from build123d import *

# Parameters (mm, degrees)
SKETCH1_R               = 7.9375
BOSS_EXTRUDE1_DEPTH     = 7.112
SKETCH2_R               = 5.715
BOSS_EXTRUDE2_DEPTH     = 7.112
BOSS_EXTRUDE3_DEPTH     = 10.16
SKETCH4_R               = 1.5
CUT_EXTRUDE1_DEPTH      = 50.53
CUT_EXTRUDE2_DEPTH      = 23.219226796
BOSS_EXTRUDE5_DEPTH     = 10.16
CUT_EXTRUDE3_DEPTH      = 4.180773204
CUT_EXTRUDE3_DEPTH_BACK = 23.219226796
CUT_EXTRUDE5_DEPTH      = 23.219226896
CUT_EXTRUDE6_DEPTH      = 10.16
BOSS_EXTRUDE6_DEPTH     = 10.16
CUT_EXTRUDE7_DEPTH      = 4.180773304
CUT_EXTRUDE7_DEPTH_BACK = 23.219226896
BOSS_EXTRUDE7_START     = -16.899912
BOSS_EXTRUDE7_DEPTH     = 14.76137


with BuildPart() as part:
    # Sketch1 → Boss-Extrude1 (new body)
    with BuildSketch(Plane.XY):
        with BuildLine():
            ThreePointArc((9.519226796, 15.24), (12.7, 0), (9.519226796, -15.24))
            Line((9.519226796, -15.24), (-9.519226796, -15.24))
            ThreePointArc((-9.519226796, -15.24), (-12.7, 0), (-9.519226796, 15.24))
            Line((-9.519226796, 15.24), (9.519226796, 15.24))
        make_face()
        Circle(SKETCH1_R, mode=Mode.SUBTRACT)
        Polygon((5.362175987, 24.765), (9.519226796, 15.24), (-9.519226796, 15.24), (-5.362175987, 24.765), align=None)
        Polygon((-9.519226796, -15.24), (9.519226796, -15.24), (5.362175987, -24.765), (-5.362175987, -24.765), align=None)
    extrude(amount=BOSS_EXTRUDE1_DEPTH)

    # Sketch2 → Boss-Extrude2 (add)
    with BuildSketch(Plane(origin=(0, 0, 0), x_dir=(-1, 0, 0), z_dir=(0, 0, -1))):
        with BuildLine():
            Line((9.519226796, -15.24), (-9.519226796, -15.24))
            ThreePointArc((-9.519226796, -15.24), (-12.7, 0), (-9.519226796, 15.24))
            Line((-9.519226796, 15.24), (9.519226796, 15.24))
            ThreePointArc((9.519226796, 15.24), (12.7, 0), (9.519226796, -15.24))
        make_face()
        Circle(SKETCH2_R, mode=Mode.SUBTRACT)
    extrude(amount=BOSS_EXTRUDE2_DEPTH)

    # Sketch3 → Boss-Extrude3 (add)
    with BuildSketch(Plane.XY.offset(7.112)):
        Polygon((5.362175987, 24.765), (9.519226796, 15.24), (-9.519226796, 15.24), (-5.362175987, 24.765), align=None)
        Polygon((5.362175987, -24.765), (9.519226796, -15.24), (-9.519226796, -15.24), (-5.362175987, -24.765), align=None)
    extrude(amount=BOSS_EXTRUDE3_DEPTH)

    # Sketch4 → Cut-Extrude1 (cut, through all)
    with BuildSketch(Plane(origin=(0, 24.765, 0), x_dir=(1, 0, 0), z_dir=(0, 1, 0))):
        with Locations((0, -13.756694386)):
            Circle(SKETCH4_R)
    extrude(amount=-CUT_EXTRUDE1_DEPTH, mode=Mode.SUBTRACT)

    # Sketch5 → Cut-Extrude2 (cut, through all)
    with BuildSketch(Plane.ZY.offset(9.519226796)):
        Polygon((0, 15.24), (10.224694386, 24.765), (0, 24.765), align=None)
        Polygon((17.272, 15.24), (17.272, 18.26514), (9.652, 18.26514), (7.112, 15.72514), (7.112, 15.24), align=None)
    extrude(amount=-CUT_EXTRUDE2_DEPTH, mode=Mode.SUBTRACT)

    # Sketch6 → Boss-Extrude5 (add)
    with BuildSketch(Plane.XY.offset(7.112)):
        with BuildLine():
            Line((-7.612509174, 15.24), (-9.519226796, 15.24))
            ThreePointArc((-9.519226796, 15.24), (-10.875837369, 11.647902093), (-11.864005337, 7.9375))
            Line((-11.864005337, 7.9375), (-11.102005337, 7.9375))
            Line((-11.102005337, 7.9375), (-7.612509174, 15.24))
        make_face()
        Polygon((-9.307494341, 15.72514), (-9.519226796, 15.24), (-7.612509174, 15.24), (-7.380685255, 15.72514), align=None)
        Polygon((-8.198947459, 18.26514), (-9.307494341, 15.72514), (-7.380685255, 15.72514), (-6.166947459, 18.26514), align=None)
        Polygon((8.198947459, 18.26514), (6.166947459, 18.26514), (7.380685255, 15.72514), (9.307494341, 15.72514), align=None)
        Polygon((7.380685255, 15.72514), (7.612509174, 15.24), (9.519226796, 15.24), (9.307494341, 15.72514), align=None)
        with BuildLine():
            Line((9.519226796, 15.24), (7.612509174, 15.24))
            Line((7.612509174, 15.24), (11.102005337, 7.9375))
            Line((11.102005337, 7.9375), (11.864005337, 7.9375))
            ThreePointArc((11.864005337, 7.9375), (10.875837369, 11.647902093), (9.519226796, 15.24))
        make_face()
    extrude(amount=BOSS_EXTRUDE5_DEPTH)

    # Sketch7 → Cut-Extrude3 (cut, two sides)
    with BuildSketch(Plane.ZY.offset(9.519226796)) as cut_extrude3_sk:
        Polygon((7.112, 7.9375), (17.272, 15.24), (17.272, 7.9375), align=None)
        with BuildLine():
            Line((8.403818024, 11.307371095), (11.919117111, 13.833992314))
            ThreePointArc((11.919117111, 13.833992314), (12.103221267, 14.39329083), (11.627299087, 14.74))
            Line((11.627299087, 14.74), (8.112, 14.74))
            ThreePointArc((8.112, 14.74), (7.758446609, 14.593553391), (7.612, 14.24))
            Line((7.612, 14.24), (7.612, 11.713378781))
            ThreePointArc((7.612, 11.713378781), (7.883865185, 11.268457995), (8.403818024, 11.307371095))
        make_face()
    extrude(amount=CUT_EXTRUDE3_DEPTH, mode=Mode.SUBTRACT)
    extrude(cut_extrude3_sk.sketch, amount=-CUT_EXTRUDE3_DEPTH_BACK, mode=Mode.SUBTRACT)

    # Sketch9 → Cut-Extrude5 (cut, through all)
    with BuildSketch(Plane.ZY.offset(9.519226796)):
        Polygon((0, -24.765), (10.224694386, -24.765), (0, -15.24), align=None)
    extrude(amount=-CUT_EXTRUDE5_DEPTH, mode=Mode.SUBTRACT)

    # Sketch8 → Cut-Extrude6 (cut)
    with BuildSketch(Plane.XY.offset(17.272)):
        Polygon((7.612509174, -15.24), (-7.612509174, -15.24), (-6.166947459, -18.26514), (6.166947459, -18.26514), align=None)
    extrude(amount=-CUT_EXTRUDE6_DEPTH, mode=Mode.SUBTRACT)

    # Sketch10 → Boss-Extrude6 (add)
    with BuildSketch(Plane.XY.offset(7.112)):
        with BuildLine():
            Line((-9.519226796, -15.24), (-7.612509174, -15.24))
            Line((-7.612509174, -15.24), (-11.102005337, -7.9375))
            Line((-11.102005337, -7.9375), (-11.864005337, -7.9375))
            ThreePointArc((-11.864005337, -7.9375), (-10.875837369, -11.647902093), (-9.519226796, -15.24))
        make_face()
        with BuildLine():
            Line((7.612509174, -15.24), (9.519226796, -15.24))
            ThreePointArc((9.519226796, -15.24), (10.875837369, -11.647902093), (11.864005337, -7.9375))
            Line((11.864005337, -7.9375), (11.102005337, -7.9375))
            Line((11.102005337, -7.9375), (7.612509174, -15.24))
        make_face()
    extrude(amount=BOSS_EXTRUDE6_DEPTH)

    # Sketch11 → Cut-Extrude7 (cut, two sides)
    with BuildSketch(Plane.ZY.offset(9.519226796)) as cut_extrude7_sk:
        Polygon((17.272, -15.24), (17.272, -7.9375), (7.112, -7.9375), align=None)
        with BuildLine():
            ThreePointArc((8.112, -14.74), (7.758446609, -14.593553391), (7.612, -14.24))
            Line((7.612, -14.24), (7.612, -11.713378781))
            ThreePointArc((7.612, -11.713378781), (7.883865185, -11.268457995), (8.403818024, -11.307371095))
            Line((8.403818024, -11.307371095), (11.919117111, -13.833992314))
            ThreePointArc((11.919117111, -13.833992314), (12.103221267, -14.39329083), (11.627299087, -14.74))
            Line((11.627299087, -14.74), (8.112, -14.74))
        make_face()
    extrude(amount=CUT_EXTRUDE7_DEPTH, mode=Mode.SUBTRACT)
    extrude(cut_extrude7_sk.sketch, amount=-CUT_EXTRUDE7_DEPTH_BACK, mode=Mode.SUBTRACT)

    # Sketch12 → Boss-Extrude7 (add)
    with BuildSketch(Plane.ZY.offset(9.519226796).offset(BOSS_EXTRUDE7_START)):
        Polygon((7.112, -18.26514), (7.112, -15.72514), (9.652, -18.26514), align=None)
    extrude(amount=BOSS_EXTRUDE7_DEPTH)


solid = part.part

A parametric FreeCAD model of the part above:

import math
import FreeCAD as App
import Part
import Sketcher
from FreeCAD import Vector
Q = App.Units.Quantity

doc = App.newDocument("Part")
body = doc.addObject("PartDesign::Body", "Body")

# Sketch on XY plane
sketch1 = doc.addObject("Sketcher::SketchObject", "Sketch")
body.addObject(sketch1)
sketch1.AttachmentSupport = (doc.XY_Plane, [""])
sketch1.MapMode = "FlatFace"
sketch1.addGeometry(Part.ArcOfCircle(Part.Circle(Vector(-25, 0, 0), Vector(0, 0, 1), 38), math.radians(-24), math.radians(24)), False)
sketch1.addGeometry(Part.LineSegment(Vector(10, 15, 0), Vector(5, 25, 0)), False)
sketch1.addGeometry(Part.LineSegment(Vector(5, 25, 0), Vector(-5, 25, 0)), False)
sketch1.addGeometry(Part.LineSegment(Vector(-5, 25, 0), Vector(-10, 15, 0)), False)
sketch1.addGeometry(Part.ArcOfCircle(Part.Circle(Vector(25, 0, 0), Vector(0, 0, 1), 38), math.radians(156), math.radians(204)), False)
sketch1.addGeometry(Part.LineSegment(Vector(-10, -15, 0), Vector(-5, -25, 0)), False)
sketch1.addGeometry(Part.LineSegment(Vector(-5, -25, 0), Vector(5, -25, 0)), False)
sketch1.addGeometry(Part.LineSegment(Vector(5, -25, 0), Vector(10, -15, 0)), False)
sketch1.addGeometry(Part.Circle(Vector(0, 0, 0), Vector(0, 0, 1), 8), False)
sketch1.addConstraint(Sketcher.Constraint("Tangent", 0, 2, 1, 1))
sketch1.addConstraint(Sketcher.Constraint("Coincident", 1, 2, 2, 1))
sketch1.addConstraint(Sketcher.Constraint("Coincident", 2, 2, 3, 1))
sketch1.addConstraint(Sketcher.Constraint("Tangent", 3, 2, 4, 1))
sketch1.addConstraint(Sketcher.Constraint("Tangent", 4, 2, 5, 1))
sketch1.addConstraint(Sketcher.Constraint("Coincident", 5, 2, 6, 1))
sketch1.addConstraint(Sketcher.Constraint("Coincident", 6, 2, 7, 1))
sketch1.addConstraint(Sketcher.Constraint("Tangent", 7, 2, 0, 1))
sketch1.addConstraint(Sketcher.Constraint("Horizontal", 2))
sketch1.addConstraint(Sketcher.Constraint("Horizontal", 6))
sketch1.addConstraint(Sketcher.Constraint("Coincident", 8, 3, -1, 1))
sketch1.addConstraint(Sketcher.Constraint("Equal", 0, 4))
sketch1.addConstraint(Sketcher.Constraint("Symmetric", 0, 3, 4, 3, -1, 1))
sketch1.addConstraint(Sketcher.Constraint("Symmetric", 1, 2, 5, 2, -1, 1))
sketch1.addConstraint(Sketcher.Constraint("Symmetric", 0, 2, 3, 2, -2))
sketch1.addConstraint(Sketcher.Constraint("Parallel", 3, 7))
sketch1.addConstraint(Sketcher.Constraint("Radius", 0, Q("1.5 in")))
sketch1.addConstraint(Sketcher.Constraint("Diameter", 8, Q("0.625 in")))
sketch1.addConstraint(Sketcher.Constraint("DistanceX", 0, 3, -1, 1, Q("1 in")))
sketch1.addConstraint(Sketcher.Constraint("DistanceY", -1, 1, 0, 2, Q("0.6 in")))
sketch1.addConstraint(Sketcher.Constraint("DistanceY", -1, 1, 1, 2, Q("0.975 in")))
pad1 = doc.addObject("PartDesign::Pad", "Pad")
body.addObject(pad1)
pad1.Profile = sketch1
pad1.Length = Q("0.28 in")

# Sketch on XY plane
sketch2 = doc.addObject("Sketcher::SketchObject", "Sketch001")
body.addObject(sketch2)
sketch2.AttachmentSupport = (doc.XY_Plane, [""])
sketch2.MapMode = "FlatFace"
sketch2.addGeometry(Part.LineSegment(Vector(10, -15, 0), Vector(-10, -15, 0)), False)
sketch2.addGeometry(Part.ArcOfCircle(Part.Circle(Vector(25, 0, 0), Vector(0, 0, 1), 38), math.radians(156), math.radians(204)), False)
sketch2.addGeometry(Part.LineSegment(Vector(-10, 15, 0), Vector(10, 15, 0)), False)
sketch2.addGeometry(Part.ArcOfCircle(Part.Circle(Vector(-25, 0, 0), Vector(0, 0, 1), 38), math.radians(-24), math.radians(24)), False)
sketch2.addGeometry(Part.Circle(Vector(0, 0, 0), Vector(0, 0, 1), 6), False)
sketch2.addConstraint(Sketcher.Constraint("Coincident", 0, 2, 1, 2))
sketch2.addConstraint(Sketcher.Constraint("Coincident", 1, 1, 2, 1))
sketch2.addConstraint(Sketcher.Constraint("Coincident", 2, 2, 3, 2))
sketch2.addConstraint(Sketcher.Constraint("Coincident", 3, 1, 0, 1))
sketch2.addConstraint(Sketcher.Constraint("Horizontal", 0))
sketch2.addConstraint(Sketcher.Constraint("Horizontal", 2))
sketch2.addConstraint(Sketcher.Constraint("Coincident", 4, 3, -1, 1))
sketch2.addConstraint(Sketcher.Constraint("Equal", 1, 3))
sketch2.addConstraint(Sketcher.Constraint("Symmetric", 1, 3, 3, 3, -1, 1))
sketch2.addConstraint(Sketcher.Constraint("Symmetric", 0, 2, 1, 1, -1))
sketch2.addConstraint(Sketcher.Constraint("Radius", 1, Q("1.5 in")))
sketch2.addConstraint(Sketcher.Constraint("Diameter", 4, Q("0.45 in")))
sketch2.addConstraint(Sketcher.Constraint("DistanceX", -1, 1, 1, 3, Q("1 in")))
sketch2.addConstraint(Sketcher.Constraint("DistanceY", 0, 2, -1, 1, Q("0.6 in")))
pad2 = doc.addObject("PartDesign::Pad", "Pad001")
body.addObject(pad2)
pad2.Profile = sketch2
pad2.Length = Q("0.28 in")
pad2.Reversed = True

# Sketch on XY plane
sketch3 = doc.addObject("Sketcher::SketchObject", "Sketch002")
body.addObject(sketch3)
sketch3.AttachmentSupport = (doc.XY_Plane, [""])
sketch3.MapMode = "FlatFace"
sketch3.AttachmentOffset = App.Placement(Vector(0, 0, 0.28 * 25.4), App.Rotation())
sketch3.addGeometry(Part.LineSegment(Vector(10, 15, 0), Vector(5, 25, 0)), False)
sketch3.addGeometry(Part.LineSegment(Vector(5, 25, 0), Vector(-5, 25, 0)), False)
sketch3.addGeometry(Part.LineSegment(Vector(-5, 25, 0), Vector(-10, 15, 0)), False)
sketch3.addGeometry(Part.LineSegment(Vector(-10, 15, 0), Vector(10, 15, 0)), False)
sketch3.addGeometry(Part.LineSegment(Vector(5, -25, 0), Vector(10, -15, 0)), False)
sketch3.addGeometry(Part.LineSegment(Vector(10, -15, 0), Vector(-10, -15, 0)), False)
sketch3.addGeometry(Part.LineSegment(Vector(-10, -15, 0), Vector(-5, -25, 0)), False)
sketch3.addGeometry(Part.LineSegment(Vector(-5, -25, 0), Vector(5, -25, 0)), False)
sketch3.addConstraint(Sketcher.Constraint("Coincident", 0, 2, 1, 1))
sketch3.addConstraint(Sketcher.Constraint("Coincident", 1, 2, 2, 1))
sketch3.addConstraint(Sketcher.Constraint("Coincident", 2, 2, 3, 1))
sketch3.addConstraint(Sketcher.Constraint("Coincident", 3, 2, 0, 1))
sketch3.addConstraint(Sketcher.Constraint("Coincident", 4, 2, 5, 1))
sketch3.addConstraint(Sketcher.Constraint("Coincident", 5, 2, 6, 1))
sketch3.addConstraint(Sketcher.Constraint("Coincident", 6, 2, 7, 1))
sketch3.addConstraint(Sketcher.Constraint("Coincident", 7, 2, 4, 1))
sketch3.addConstraint(Sketcher.Constraint("Horizontal", 1))
sketch3.addConstraint(Sketcher.Constraint("Horizontal", 3))
sketch3.addConstraint(Sketcher.Constraint("Horizontal", 5))
sketch3.addConstraint(Sketcher.Constraint("Horizontal", 7))
sketch3.addConstraint(Sketcher.Constraint("Symmetric", 2, 2, 4, 2, -1, 1))
sketch3.addConstraint(Sketcher.Constraint("Symmetric", 0, 2, 6, 2, -1, 1))
sketch3.addConstraint(Sketcher.Constraint("Parallel", 2, 4))
sketch3.addConstraint(Sketcher.Constraint("Parallel", 0, 6))
sketch3.addConstraint(Sketcher.Constraint("Vertical", 3, 2, 4, 2))
sketch3.addConstraint(Sketcher.Constraint("Vertical", 1, 2, 6, 2))
sketch3.addConstraint(Sketcher.Constraint("DistanceY", -1, 1, 2, 2, Q("0.6 in")))
sketch3.addConstraint(Sketcher.Constraint("DistanceY", 6, 2, 1, 2, Q("1.95 in")))
sketch3.addConstraint(Sketcher.Constraint("DistanceX", 1, 2, 1, 1, Q("10.724352 mm")))
sketch3.addConstraint(Sketcher.Constraint("DistanceX", 3, 1, 3, 2, Q("19.038454 mm")))
pad3 = doc.addObject("PartDesign::Pad", "Pad002")
body.addObject(pad3)
pad3.Profile = sketch3
pad3.Length = Q("0.4 in")

# Sketch on XZ plane
sketch4 = doc.addObject("Sketcher::SketchObject", "Sketch003")
body.addObject(sketch4)
sketch4.AttachmentSupport = (doc.XZ_Plane, [""])
sketch4.MapMode = "FlatFace"
sketch4.AttachmentOffset = App.Placement(Vector(0, 0, -0.975 * 25.4), App.Rotation())
sketch4.addGeometry(Part.Circle(Vector(0, 13.8, 0), Vector(0, 0, 1), 1.5), False)
sketch4.addConstraint(Sketcher.Constraint("PointOnObject", 0, 3, -2))
sketch4.addConstraint(Sketcher.Constraint("Diameter", 0, Q("3 mm")))
sketch4.addConstraint(Sketcher.Constraint("DistanceY", -1, 1, 0, 3, Q("13.756694 mm")))
pocket1 = doc.addObject("PartDesign::Pocket", "Pocket")
body.addObject(pocket1)
pocket1.Profile = sketch4
pocket1.Type = "ThroughAll"
pocket1.Reversed = True

# Sketch on YZ plane
sketch5 = doc.addObject("Sketcher::SketchObject", "Sketch004")
body.addObject(sketch5)
sketch5.AttachmentSupport = (doc.YZ_Plane, [""])
sketch5.MapMode = "FlatFace"
sketch5.AttachmentOffset = App.Placement(Vector(0, 0, -9.519227), App.Rotation())
sketch5.addGeometry(Part.LineSegment(Vector(15.24, 0, 0), Vector(24.77, 10.22, 0)), False)
sketch5.addGeometry(Part.LineSegment(Vector(24.77, 10.22, 0), Vector(24.77, 0, 0)), False)
sketch5.addGeometry(Part.LineSegment(Vector(24.77, 0, 0), Vector(15.24, 0, 0)), False)
sketch5.addGeometry(Part.LineSegment(Vector(15.24, 17.27, 0), Vector(18.27, 17.27, 0)), False)
sketch5.addGeometry(Part.LineSegment(Vector(18.27, 17.27, 0), Vector(18.27, 9.65, 0)), False)
sketch5.addGeometry(Part.LineSegment(Vector(18.27, 9.65, 0), Vector(15.73, 7.11, 0)), False)
sketch5.addGeometry(Part.LineSegment(Vector(15.73, 7.11, 0), Vector(15.24, 7.11, 0)), False)
sketch5.addGeometry(Part.LineSegment(Vector(15.24, 7.11, 0), Vector(15.24, 17.27, 0)), False)
sketch5.addConstraint(Sketcher.Constraint("Coincident", 0, 2, 1, 1))
sketch5.addConstraint(Sketcher.Constraint("Coincident", 1, 2, 2, 1))
sketch5.addConstraint(Sketcher.Constraint("Coincident", 2, 2, 0, 1))
sketch5.addConstraint(Sketcher.Constraint("Coincident", 3, 2, 4, 1))
sketch5.addConstraint(Sketcher.Constraint("Coincident", 4, 2, 5, 1))
sketch5.addConstraint(Sketcher.Constraint("Coincident", 5, 2, 6, 1))
sketch5.addConstraint(Sketcher.Constraint("Coincident", 6, 2, 7, 1))
sketch5.addConstraint(Sketcher.Constraint("Coincident", 7, 2, 3, 1))
sketch5.addConstraint(Sketcher.Constraint("Vertical", 1))
sketch5.addConstraint(Sketcher.Constraint("Horizontal", 2))
sketch5.addConstraint(Sketcher.Constraint("Horizontal", 3))
sketch5.addConstraint(Sketcher.Constraint("Vertical", 4))
sketch5.addConstraint(Sketcher.Constraint("Horizontal", 6))
sketch5.addConstraint(Sketcher.Constraint("Vertical", 7))
sketch5.addConstraint(Sketcher.Constraint("PointOnObject", 1, 2, -1))
sketch5.addConstraint(Sketcher.Constraint("Vertical", 2, 2, 6, 2))
sketch5.addConstraint(Sketcher.Constraint("DistanceY", 4, 2, 4, 1, Q("0.3 in")))
sketch5.addConstraint(Sketcher.Constraint("DistanceY", 7, 1, 7, 2, Q("0.4 in")))
sketch5.addConstraint(Sketcher.Constraint("Angle", 5, Q("-135 deg")))
sketch5.addConstraint(Sketcher.Constraint("DistanceX", -1, 1, 2, 2, Q("0.6 in")))
sketch5.addConstraint(Sketcher.Constraint("DistanceX", 2, 2, 2, 1, Q("0.375 in")))
sketch5.addConstraint(Sketcher.Constraint("DistanceY", -1, 1, 3, 2, Q("0.68 in")))
sketch5.addConstraint(Sketcher.Constraint("DistanceX", 3, 1, 3, 2, Q("0.1191 in")))
sketch5.addConstraint(Sketcher.Constraint("DistanceY", 1, 2, 1, 1, Q("10.224694 mm")))
pocket2 = doc.addObject("PartDesign::Pocket", "Pocket001")
body.addObject(pocket2)
pocket2.Profile = sketch5
pocket2.Type = "ThroughAll"
pocket2.Reversed = True

# Sketch on XY plane
sketch6 = doc.addObject("Sketcher::SketchObject", "Sketch005")
body.addObject(sketch6)
sketch6.AttachmentSupport = (doc.XY_Plane, [""])
sketch6.MapMode = "FlatFace"
sketch6.AttachmentOffset = App.Placement(Vector(0, 0, 0.28 * 25.4), App.Rotation())
sketch6.addGeometry(Part.ArcOfCircle(Part.Circle(Vector(25.4, 0, 0), Vector(0, 0, 1), 38.1), math.radians(156.42), math.radians(167.98)), False)
sketch6.addGeometry(Part.LineSegment(Vector(-11.9, 7.9, 0), Vector(-11.1, 7.9, 0)), False)
sketch6.addGeometry(Part.LineSegment(Vector(-11.1, 7.9, 0), Vector(-7.6, 15.2, 0)), False)
sketch6.addGeometry(Part.LineSegment(Vector(-7.6, 15.2, 0), Vector(-7.4, 15.7, 0)), False)
sketch6.addGeometry(Part.LineSegment(Vector(-7.4, 15.7, 0), Vector(-6.2, 18.3, 0)), False)
sketch6.addGeometry(Part.LineSegment(Vector(-6.2, 18.3, 0), Vector(-8.2, 18.3, 0)), False)
sketch6.addGeometry(Part.LineSegment(Vector(-8.2, 18.3, 0), Vector(-9.3, 15.7, 0)), False)
sketch6.addGeometry(Part.LineSegment(Vector(-9.3, 15.7, 0), Vector(-9.5, 15.2, 0)), False)
sketch6.addGeometry(Part.LineSegment(Vector(8.2, 18.3, 0), Vector(6.2, 18.3, 0)), False)
sketch6.addGeometry(Part.LineSegment(Vector(6.2, 18.3, 0), Vector(7.4, 15.7, 0)), False)
sketch6.addGeometry(Part.LineSegment(Vector(7.4, 15.7, 0), Vector(7.6, 15.2, 0)), False)
sketch6.addGeometry(Part.LineSegment(Vector(7.6, 15.2, 0), Vector(11.1, 7.9, 0)), False)
sketch6.addGeometry(Part.LineSegment(Vector(11.1, 7.9, 0), Vector(11.9, 7.9, 0)), False)
sketch6.addGeometry(Part.ArcOfCircle(Part.Circle(Vector(-25.4, 0, 0), Vector(0, 0, 1), 38.1), math.radians(12.02), math.radians(23.58)), False)
sketch6.addGeometry(Part.LineSegment(Vector(9.5, 15.2, 0), Vector(9.3, 15.7, 0)), False)
sketch6.addGeometry(Part.LineSegment(Vector(9.3, 15.7, 0), Vector(8.2, 18.3, 0)), False)
sketch6.addConstraint(Sketcher.Constraint("Coincident", 0, 2, 1, 1))
sketch6.addConstraint(Sketcher.Constraint("Coincident", 1, 2, 2, 1))
sketch6.addConstraint(Sketcher.Constraint("Coincident", 2, 2, 3, 1))
sketch6.addConstraint(Sketcher.Constraint("Coincident", 3, 2, 4, 1))
sketch6.addConstraint(Sketcher.Constraint("Coincident", 4, 2, 5, 1))
sketch6.addConstraint(Sketcher.Constraint("Coincident", 5, 2, 6, 1))
sketch6.addConstraint(Sketcher.Constraint("Coincident", 6, 2, 7, 1))
sketch6.addConstraint(Sketcher.Constraint("Tangent", 7, 2, 0, 1))
sketch6.addConstraint(Sketcher.Constraint("Coincident", 8, 2, 9, 1))
sketch6.addConstraint(Sketcher.Constraint("Coincident", 9, 2, 10, 1))
sketch6.addConstraint(Sketcher.Constraint("Coincident", 10, 2, 11, 1))
sketch6.addConstraint(Sketcher.Constraint("Coincident", 11, 2, 12, 1))
sketch6.addConstraint(Sketcher.Constraint("Coincident", 12, 2, 13, 1))
sketch6.addConstraint(Sketcher.Constraint("Tangent", 13, 2, 14, 1))
sketch6.addConstraint(Sketcher.Constraint("Coincident", 14, 2, 15, 1))
sketch6.addConstraint(Sketcher.Constraint("Coincident", 15, 2, 8, 1))
sketch6.addConstraint(Sketcher.Constraint("Horizontal", 1))
sketch6.addConstraint(Sketcher.Constraint("Horizontal", 5))
sketch6.addConstraint(Sketcher.Constraint("Horizontal", 8))
sketch6.addConstraint(Sketcher.Constraint("Horizontal", 12))
sketch6.addConstraint(Sketcher.Constraint("Equal", 0, 13))
sketch6.addConstraint(Sketcher.Constraint("Symmetric", 0, 3, 13, 3, -1, 1))
sketch6.addConstraint(Sketcher.Constraint("Symmetric", 4, 2, 8, 2, -2))
sketch6.addConstraint(Sketcher.Constraint("Symmetric", 3, 2, 9, 2, -2))
sketch6.addConstraint(Sketcher.Constraint("Symmetric", 2, 2, 10, 2, -2))
sketch6.addConstraint(Sketcher.Constraint("Symmetric", 1, 2, 11, 2, -2))
sketch6.addConstraint(Sketcher.Constraint("Symmetric", 7, 2, 13, 2, -2))
sketch6.addConstraint(Sketcher.Constraint("Parallel", 2, 3))
sketch6.addConstraint(Sketcher.Constraint("Parallel", 3, 4))
sketch6.addConstraint(Sketcher.Constraint("Parallel", 6, 7))
sketch6.addConstraint(Sketcher.Constraint("Parallel", 14, 15))
sketch6.addConstraint(Sketcher.Constraint("Horizontal", 3, 2, 6, 2))
sketch6.addConstraint(Sketcher.Constraint("Horizontal", 2, 2, 7, 2))
sketch6.addConstraint(Sketcher.Constraint("Horizontal", 9, 2, 14, 2))
sketch6.addConstraint(Sketcher.Constraint("Radius", 0, Q("1.5 in")))
sketch6.addConstraint(Sketcher.Constraint("DistanceX", -1, 1, 0, 3, Q("1 in")))
sketch6.addConstraint(Sketcher.Constraint("DistanceX", 1, 1, 1, 2, Q("0.03 in")))
sketch6.addConstraint(Sketcher.Constraint("DistanceX", 5, 2, 5, 1, Q("0.08 in")))
sketch6.addConstraint(Sketcher.Constraint("DistanceY", -1, 1, 2, 2, Q("0.6 in")))
sketch6.addConstraint(Sketcher.Constraint("DistanceY", 3, 2, 4, 2, Q("0.1 in")))
sketch6.addConstraint(Sketcher.Constraint("DistanceY", -1, 1, 0, 2, Q("0.3125 in")))
sketch6.addConstraint(Sketcher.Constraint("DistanceY", -1, 1, 3, 2, Q("0.6191 in")))
pad4 = doc.addObject("PartDesign::Pad", "Pad003")
body.addObject(pad4)
pad4.Profile = sketch6
pad4.Length = Q("0.4 in")

# Sketch on YZ plane
sketch7 = doc.addObject("Sketcher::SketchObject", "Sketch006")
body.addObject(sketch7)
sketch7.AttachmentSupport = (doc.YZ_Plane, [""])
sketch7.MapMode = "FlatFace"
sketch7.AttachmentOffset = App.Placement(Vector(0, 0, -9.519227), App.Rotation())
sketch7.addGeometry(Part.LineSegment(Vector(15.24, 17.27, 0), Vector(7.94, 7.11, 0)), False)
sketch7.addGeometry(Part.LineSegment(Vector(7.94, 7.11, 0), Vector(7.94, 17.27, 0)), False)
sketch7.addGeometry(Part.LineSegment(Vector(7.94, 17.27, 0), Vector(15.24, 17.27, 0)), False)
sketch7.addGeometry(Part.LineSegment(Vector(11.31, 8.4, 0), Vector(13.83, 11.92, 0)), False)
sketch7.addGeometry(Part.ArcOfCircle(Part.Circle(Vector(14.24, 11.63, 0), Vector(0, 0, 1), 0.5), math.radians(0), math.radians(144)), False)
sketch7.addGeometry(Part.LineSegment(Vector(14.74, 11.63, 0), Vector(14.74, 8.11, 0)), False)
sketch7.addGeometry(Part.ArcOfCircle(Part.Circle(Vector(14.24, 8.11, 0), Vector(0, 0, 1), 0.5), math.radians(-90), math.radians(0)), False)
sketch7.addGeometry(Part.LineSegment(Vector(14.24, 7.61, 0), Vector(11.71, 7.61, 0)), False)
sketch7.addGeometry(Part.ArcOfCircle(Part.Circle(Vector(11.71, 8.11, 0), Vector(0, 0, 1), 0.5), math.radians(144), math.radians(270)), False)
sketch7.addConstraint(Sketcher.Constraint("Coincident", 0, 2, 1, 1))
sketch7.addConstraint(Sketcher.Constraint("Coincident", 1, 2, 2, 1))
sketch7.addConstraint(Sketcher.Constraint("Coincident", 2, 2, 0, 1))
sketch7.addConstraint(Sketcher.Constraint("Tangent", 3, 2, 4, 2))
sketch7.addConstraint(Sketcher.Constraint("Tangent", 4, 1, 5, 1))
sketch7.addConstraint(Sketcher.Constraint("Tangent", 5, 2, 6, 2))
sketch7.addConstraint(Sketcher.Constraint("Tangent", 6, 1, 7, 1))
sketch7.addConstraint(Sketcher.Constraint("Tangent", 7, 2, 8, 2))
sketch7.addConstraint(Sketcher.Constraint("Tangent", 8, 1, 3, 1))
sketch7.addConstraint(Sketcher.Constraint("Vertical", 1))
sketch7.addConstraint(Sketcher.Constraint("Horizontal", 2))
sketch7.addConstraint(Sketcher.Constraint("Vertical", 5))
sketch7.addConstraint(Sketcher.Constraint("Horizontal", 7))
sketch7.addConstraint(Sketcher.Constraint("Equal", 4, 6))
sketch7.addConstraint(Sketcher.Constraint("Equal", 6, 8))
sketch7.addConstraint(Sketcher.Constraint("Parallel", 0, 3))
sketch7.addConstraint(Sketcher.Constraint("DistanceY", 1, 1, 1, 2, Q("0.4 in")))
sketch7.addConstraint(Sketcher.Constraint("DistanceX", -1, 1, 2, 2, Q("0.6 in")))
sketch7.addConstraint(Sketcher.Constraint("DistanceY", -1, 1, 0, 2, Q("0.28 in")))
sketch7.addConstraint(Sketcher.Constraint("Radius", 4, Q("0.5 mm")))
sketch7.addConstraint(Sketcher.Constraint("DistanceX", 2, 1, 2, 2, Q("0.2875 in")))
sketch7.addConstraint(Sketcher.Constraint("DistanceY", 5, 2, 5, 1, Q("3.515299 mm")))
sketch7.addConstraint(Sketcher.Constraint("DistanceX", -1, 1, 4, 3, Q("14.24 mm")))
sketch7.addConstraint(Sketcher.Constraint("DistanceY", -1, 1, 4, 3, Q("11.627299 mm")))
pocket3 = doc.addObject("PartDesign::Pocket", "Pocket002")
body.addObject(pocket3)
pocket3.Profile = sketch7
pocket3.Type = "ThroughAll"
pocket3.Midplane = True

# Sketch on YZ plane
sketch8 = doc.addObject("Sketcher::SketchObject", "Sketch007")
body.addObject(sketch8)
sketch8.AttachmentSupport = (doc.YZ_Plane, [""])
sketch8.MapMode = "FlatFace"
sketch8.AttachmentOffset = App.Placement(Vector(0, 0, -9.519227), App.Rotation())
sketch8.addGeometry(Part.LineSegment(Vector(-25, 0, 0), Vector(-25, 10, 0)), False)
sketch8.addGeometry(Part.LineSegment(Vector(-25, 10, 0), Vector(-15, 0, 0)), False)
sketch8.addGeometry(Part.LineSegment(Vector(-15, 0, 0), Vector(-25, 0, 0)), False)
sketch8.addConstraint(Sketcher.Constraint("Coincident", 0, 2, 1, 1))
sketch8.addConstraint(Sketcher.Constraint("Coincident", 1, 2, 2, 1))
sketch8.addConstraint(Sketcher.Constraint("Coincident", 2, 2, 0, 1))
sketch8.addConstraint(Sketcher.Constraint("Vertical", 0))
sketch8.addConstraint(Sketcher.Constraint("Horizontal", 2))
sketch8.addConstraint(Sketcher.Constraint("PointOnObject", 1, 2, -1))
sketch8.addConstraint(Sketcher.Constraint("DistanceX", 1, 2, -1, 1, Q("0.6 in")))
sketch8.addConstraint(Sketcher.Constraint("DistanceX", 2, 2, 2, 1, Q("0.375 in")))
sketch8.addConstraint(Sketcher.Constraint("DistanceY", 0, 1, 0, 2, Q("10.224694 mm")))
pocket4 = doc.addObject("PartDesign::Pocket", "Pocket003")
body.addObject(pocket4)
pocket4.Profile = sketch8
pocket4.Type = "ThroughAll"
pocket4.Reversed = True

# Sketch on XY plane
sketch9 = doc.addObject("Sketcher::SketchObject", "Sketch008")
body.addObject(sketch9)
sketch9.AttachmentSupport = (doc.XY_Plane, [""])
sketch9.MapMode = "FlatFace"
sketch9.AttachmentOffset = App.Placement(Vector(0, 0, 0.68 * 25.4), App.Rotation())
sketch9.addGeometry(Part.LineSegment(Vector(7.6, -15.2, 0), Vector(-7.6, -15.2, 0)), False)
sketch9.addGeometry(Part.LineSegment(Vector(-7.6, -15.2, 0), Vector(-6.2, -18.3, 0)), False)
sketch9.addGeometry(Part.LineSegment(Vector(-6.2, -18.3, 0), Vector(6.2, -18.3, 0)), False)
sketch9.addGeometry(Part.LineSegment(Vector(6.2, -18.3, 0), Vector(7.6, -15.2, 0)), False)
sketch9.addConstraint(Sketcher.Constraint("Coincident", 0, 2, 1, 1))
sketch9.addConstraint(Sketcher.Constraint("Coincident", 1, 2, 2, 1))
sketch9.addConstraint(Sketcher.Constraint("Coincident", 2, 2, 3, 1))
sketch9.addConstraint(Sketcher.Constraint("Coincident", 3, 2, 0, 1))
sketch9.addConstraint(Sketcher.Constraint("Horizontal", 0))
sketch9.addConstraint(Sketcher.Constraint("Horizontal", 2))
sketch9.addConstraint(Sketcher.Constraint("Equal", 1, 3))
sketch9.addConstraint(Sketcher.Constraint("DistanceY", 0, 2, -1, 1, Q("0.6 in")))
sketch9.addConstraint(Sketcher.Constraint("DistanceY", 1, 2, -1, 1, Q("0.7191 in")))
sketch9.addConstraint(Sketcher.Constraint("DistanceX", 0, 2, 0, 1, Q("15.225018 mm")))
sketch9.addConstraint(Sketcher.Constraint("Distance", 1, Q("3.352778 mm")))
sketch9.addConstraint(Sketcher.Constraint("DistanceX", 0, 2, -1, 1, Q("7.612509 mm")))
pocket5 = doc.addObject("PartDesign::Pocket", "Pocket004")
body.addObject(pocket5)
pocket5.Profile = sketch9
pocket5.Length = Q("0.4 in")

# Sketch on XY plane
sketch10 = doc.addObject("Sketcher::SketchObject", "Sketch009")
body.addObject(sketch10)
sketch10.AttachmentSupport = (doc.XY_Plane, [""])
sketch10.MapMode = "FlatFace"
sketch10.AttachmentOffset = App.Placement(Vector(0, 0, 0.28 * 25.4), App.Rotation())
sketch10.addGeometry(Part.LineSegment(Vector(-9.5, -15.2, 0), Vector(-7.6, -15.2, 0)), False)
sketch10.addGeometry(Part.LineSegment(Vector(-7.6, -15.2, 0), Vector(-11.1, -7.9, 0)), False)
sketch10.addGeometry(Part.LineSegment(Vector(-11.1, -7.9, 0), Vector(-11.9, -7.9, 0)), False)
sketch10.addGeometry(Part.ArcOfCircle(Part.Circle(Vector(25.4, 0, 0), Vector(0, 0, 1), 38.1), math.radians(-167.98), math.radians(-156.42)), False)
sketch10.addGeometry(Part.LineSegment(Vector(7.6, -15.2, 0), Vector(9.5, -15.2, 0)), False)
sketch10.addGeometry(Part.ArcOfCircle(Part.Circle(Vector(-25.4, 0, 0), Vector(0, 0, 1), 38.1), math.radians(-23.58), math.radians(-12.02)), False)
sketch10.addGeometry(Part.LineSegment(Vector(11.9, -7.9, 0), Vector(11.1, -7.9, 0)), False)
sketch10.addGeometry(Part.LineSegment(Vector(11.1, -7.9, 0), Vector(7.6, -15.2, 0)), False)
sketch10.addConstraint(Sketcher.Constraint("Coincident", 0, 2, 1, 1))
sketch10.addConstraint(Sketcher.Constraint("Coincident", 1, 2, 2, 1))
sketch10.addConstraint(Sketcher.Constraint("Coincident", 2, 2, 3, 1))
sketch10.addConstraint(Sketcher.Constraint("Coincident", 3, 2, 0, 1))
sketch10.addConstraint(Sketcher.Constraint("Coincident", 4, 2, 5, 1))
sketch10.addConstraint(Sketcher.Constraint("Coincident", 5, 2, 6, 1))
sketch10.addConstraint(Sketcher.Constraint("Coincident", 6, 2, 7, 1))
sketch10.addConstraint(Sketcher.Constraint("Coincident", 7, 2, 4, 1))
sketch10.addConstraint(Sketcher.Constraint("Horizontal", 0))
sketch10.addConstraint(Sketcher.Constraint("Horizontal", 2))
sketch10.addConstraint(Sketcher.Constraint("Horizontal", 4))
sketch10.addConstraint(Sketcher.Constraint("Horizontal", 6))
sketch10.addConstraint(Sketcher.Constraint("Equal", 3, 5))
sketch10.addConstraint(Sketcher.Constraint("Symmetric", 3, 3, 5, 3, -1, 1))
sketch10.addConstraint(Sketcher.Constraint("Symmetric", 3, 2, 4, 2, -2))
sketch10.addConstraint(Sketcher.Constraint("Symmetric", 1, 2, 6, 2, -2))
sketch10.addConstraint(Sketcher.Constraint("Equal", 0, 4))
sketch10.addConstraint(Sketcher.Constraint("Radius", 3, Q("1.5 in")))
sketch10.addConstraint(Sketcher.Constraint("DistanceX", -1, 1, 3, 3, Q("1 in")))
sketch10.addConstraint(Sketcher.Constraint("DistanceX", 2, 2, 2, 1, Q("0.03 in")))
sketch10.addConstraint(Sketcher.Constraint("DistanceY", 0, 2, -1, 1, Q("0.6 in")))
sketch10.addConstraint(Sketcher.Constraint("DistanceY", 1, 2, -1, 1, Q("0.3125 in")))
sketch10.addConstraint(Sketcher.Constraint("DistanceX", 0, 1, 0, 2, Q("1.906718 mm")))
pad5 = doc.addObject("PartDesign::Pad", "Pad004")
body.addObject(pad5)
pad5.Profile = sketch10
pad5.Length = Q("0.4 in")

# Sketch on YZ plane
sketch11 = doc.addObject("Sketcher::SketchObject", "Sketch010")
body.addObject(sketch11)
sketch11.AttachmentSupport = (doc.YZ_Plane, [""])
sketch11.MapMode = "FlatFace"
sketch11.AttachmentOffset = App.Placement(Vector(0, 0, -9.519227), App.Rotation())
sketch11.addGeometry(Part.LineSegment(Vector(-15.24, 17.27, 0), Vector(-7.94, 17.27, 0)), False)
sketch11.addGeometry(Part.LineSegment(Vector(-7.94, 17.27, 0), Vector(-7.94, 7.11, 0)), False)
sketch11.addGeometry(Part.LineSegment(Vector(-7.94, 7.11, 0), Vector(-15.24, 17.27, 0)), False)
sketch11.addGeometry(Part.ArcOfCircle(Part.Circle(Vector(-14.24, 8.11, 0), Vector(0, 0, 1), 0.5), math.radians(180), math.radians(270)), False)
sketch11.addGeometry(Part.LineSegment(Vector(-14.74, 8.11, 0), Vector(-14.74, 11.63, 0)), False)
sketch11.addGeometry(Part.ArcOfCircle(Part.Circle(Vector(-14.24, 11.63, 0), Vector(0, 0, 1), 0.5), math.radians(36), math.radians(180)), False)
sketch11.addGeometry(Part.LineSegment(Vector(-13.83, 11.92, 0), Vector(-11.31, 8.4, 0)), False)
sketch11.addGeometry(Part.ArcOfCircle(Part.Circle(Vector(-11.71, 8.11, 0), Vector(0, 0, 1), 0.5), math.radians(-90), math.radians(36)), False)
sketch11.addGeometry(Part.LineSegment(Vector(-11.71, 7.61, 0), Vector(-14.24, 7.61, 0)), False)
sketch11.addConstraint(Sketcher.Constraint("Coincident", 0, 2, 1, 1))
sketch11.addConstraint(Sketcher.Constraint("Coincident", 1, 2, 2, 1))
sketch11.addConstraint(Sketcher.Constraint("Coincident", 2, 2, 0, 1))
sketch11.addConstraint(Sketcher.Constraint("Tangent", 3, 1, 4, 1))
sketch11.addConstraint(Sketcher.Constraint("Tangent", 4, 2, 5, 2))
sketch11.addConstraint(Sketcher.Constraint("Tangent", 5, 1, 6, 1))
sketch11.addConstraint(Sketcher.Constraint("Tangent", 6, 2, 7, 2))
sketch11.addConstraint(Sketcher.Constraint("Tangent", 7, 1, 8, 1))
sketch11.addConstraint(Sketcher.Constraint("Tangent", 8, 2, 3, 2))
sketch11.addConstraint(Sketcher.Constraint("Horizontal", 0))
sketch11.addConstraint(Sketcher.Constraint("Vertical", 1))
sketch11.addConstraint(Sketcher.Constraint("Vertical", 4))
sketch11.addConstraint(Sketcher.Constraint("Horizontal", 8))
sketch11.addConstraint(Sketcher.Constraint("Equal", 3, 5))
sketch11.addConstraint(Sketcher.Constraint("Equal", 5, 7))
sketch11.addConstraint(Sketcher.Constraint("Parallel", 2, 6))
sketch11.addConstraint(Sketcher.Constraint("DistanceY", 1, 2, 1, 1, Q("0.4 in")))
sketch11.addConstraint(Sketcher.Constraint("DistanceX", 2, 2, -1, 1, Q("0.6 in")))
sketch11.addConstraint(Sketcher.Constraint("DistanceY", -1, 1, 0, 2, Q("0.68 in")))
sketch11.addConstraint(Sketcher.Constraint("Radius", 3, Q("0.5 mm")))
sketch11.addConstraint(Sketcher.Constraint("DistanceX", 0, 1, 0, 2, Q("0.2875 in")))
sketch11.addConstraint(Sketcher.Constraint("DistanceY", 4, 1, 4, 2, Q("3.515299 mm")))
sketch11.addConstraint(Sketcher.Constraint("DistanceX", 3, 3, -1, 1, Q("14.24 mm")))
sketch11.addConstraint(Sketcher.Constraint("DistanceY", -1, 1, 3, 3, Q("8.112 mm")))
pocket6 = doc.addObject("PartDesign::Pocket", "Pocket005")
body.addObject(pocket6)
pocket6.Profile = sketch11
pocket6.Type = "ThroughAll"
pocket6.Midplane = True

# Sketch on YZ plane
sketch12 = doc.addObject("Sketcher::SketchObject", "Sketch011")
body.addObject(sketch12)
sketch12.AttachmentSupport = (doc.YZ_Plane, [""])
sketch12.MapMode = "FlatFace"
sketch12.AttachmentOffset = App.Placement(Vector(0, 0, 7.380685), App.Rotation())
sketch12.addGeometry(Part.LineSegment(Vector(-15.7, 7.1, 0), Vector(-18.3, 7.1, 0)), False)
sketch12.addGeometry(Part.LineSegment(Vector(-18.3, 7.1, 0), Vector(-18.3, 9.7, 0)), False)
sketch12.addGeometry(Part.LineSegment(Vector(-18.3, 9.7, 0), Vector(-15.7, 7.1, 0)), False)
sketch12.addConstraint(Sketcher.Constraint("Coincident", 0, 2, 1, 1))
sketch12.addConstraint(Sketcher.Constraint("Coincident", 1, 2, 2, 1))
sketch12.addConstraint(Sketcher.Constraint("Coincident", 2, 2, 0, 1))
sketch12.addConstraint(Sketcher.Constraint("Horizontal", 0))
sketch12.addConstraint(Sketcher.Constraint("Vertical", 1))
sketch12.addConstraint(Sketcher.Constraint("Equal", 0, 1))
sketch12.addConstraint(Sketcher.Constraint("DistanceX", 0, 2, 0, 1, Q("0.1 in")))
sketch12.addConstraint(Sketcher.Constraint("DistanceY", -1, 1, 0, 2, Q("0.28 in")))
sketch12.addConstraint(Sketcher.Constraint("DistanceX", 0, 2, -1, 1, Q("0.7191 in")))
pad6 = doc.addObject("PartDesign::Pad", "Pad005")
body.addObject(pad6)
pad6.Profile = sketch12
pad6.Length = 14.76137
pad6.Reversed = True

doc.recompute()
